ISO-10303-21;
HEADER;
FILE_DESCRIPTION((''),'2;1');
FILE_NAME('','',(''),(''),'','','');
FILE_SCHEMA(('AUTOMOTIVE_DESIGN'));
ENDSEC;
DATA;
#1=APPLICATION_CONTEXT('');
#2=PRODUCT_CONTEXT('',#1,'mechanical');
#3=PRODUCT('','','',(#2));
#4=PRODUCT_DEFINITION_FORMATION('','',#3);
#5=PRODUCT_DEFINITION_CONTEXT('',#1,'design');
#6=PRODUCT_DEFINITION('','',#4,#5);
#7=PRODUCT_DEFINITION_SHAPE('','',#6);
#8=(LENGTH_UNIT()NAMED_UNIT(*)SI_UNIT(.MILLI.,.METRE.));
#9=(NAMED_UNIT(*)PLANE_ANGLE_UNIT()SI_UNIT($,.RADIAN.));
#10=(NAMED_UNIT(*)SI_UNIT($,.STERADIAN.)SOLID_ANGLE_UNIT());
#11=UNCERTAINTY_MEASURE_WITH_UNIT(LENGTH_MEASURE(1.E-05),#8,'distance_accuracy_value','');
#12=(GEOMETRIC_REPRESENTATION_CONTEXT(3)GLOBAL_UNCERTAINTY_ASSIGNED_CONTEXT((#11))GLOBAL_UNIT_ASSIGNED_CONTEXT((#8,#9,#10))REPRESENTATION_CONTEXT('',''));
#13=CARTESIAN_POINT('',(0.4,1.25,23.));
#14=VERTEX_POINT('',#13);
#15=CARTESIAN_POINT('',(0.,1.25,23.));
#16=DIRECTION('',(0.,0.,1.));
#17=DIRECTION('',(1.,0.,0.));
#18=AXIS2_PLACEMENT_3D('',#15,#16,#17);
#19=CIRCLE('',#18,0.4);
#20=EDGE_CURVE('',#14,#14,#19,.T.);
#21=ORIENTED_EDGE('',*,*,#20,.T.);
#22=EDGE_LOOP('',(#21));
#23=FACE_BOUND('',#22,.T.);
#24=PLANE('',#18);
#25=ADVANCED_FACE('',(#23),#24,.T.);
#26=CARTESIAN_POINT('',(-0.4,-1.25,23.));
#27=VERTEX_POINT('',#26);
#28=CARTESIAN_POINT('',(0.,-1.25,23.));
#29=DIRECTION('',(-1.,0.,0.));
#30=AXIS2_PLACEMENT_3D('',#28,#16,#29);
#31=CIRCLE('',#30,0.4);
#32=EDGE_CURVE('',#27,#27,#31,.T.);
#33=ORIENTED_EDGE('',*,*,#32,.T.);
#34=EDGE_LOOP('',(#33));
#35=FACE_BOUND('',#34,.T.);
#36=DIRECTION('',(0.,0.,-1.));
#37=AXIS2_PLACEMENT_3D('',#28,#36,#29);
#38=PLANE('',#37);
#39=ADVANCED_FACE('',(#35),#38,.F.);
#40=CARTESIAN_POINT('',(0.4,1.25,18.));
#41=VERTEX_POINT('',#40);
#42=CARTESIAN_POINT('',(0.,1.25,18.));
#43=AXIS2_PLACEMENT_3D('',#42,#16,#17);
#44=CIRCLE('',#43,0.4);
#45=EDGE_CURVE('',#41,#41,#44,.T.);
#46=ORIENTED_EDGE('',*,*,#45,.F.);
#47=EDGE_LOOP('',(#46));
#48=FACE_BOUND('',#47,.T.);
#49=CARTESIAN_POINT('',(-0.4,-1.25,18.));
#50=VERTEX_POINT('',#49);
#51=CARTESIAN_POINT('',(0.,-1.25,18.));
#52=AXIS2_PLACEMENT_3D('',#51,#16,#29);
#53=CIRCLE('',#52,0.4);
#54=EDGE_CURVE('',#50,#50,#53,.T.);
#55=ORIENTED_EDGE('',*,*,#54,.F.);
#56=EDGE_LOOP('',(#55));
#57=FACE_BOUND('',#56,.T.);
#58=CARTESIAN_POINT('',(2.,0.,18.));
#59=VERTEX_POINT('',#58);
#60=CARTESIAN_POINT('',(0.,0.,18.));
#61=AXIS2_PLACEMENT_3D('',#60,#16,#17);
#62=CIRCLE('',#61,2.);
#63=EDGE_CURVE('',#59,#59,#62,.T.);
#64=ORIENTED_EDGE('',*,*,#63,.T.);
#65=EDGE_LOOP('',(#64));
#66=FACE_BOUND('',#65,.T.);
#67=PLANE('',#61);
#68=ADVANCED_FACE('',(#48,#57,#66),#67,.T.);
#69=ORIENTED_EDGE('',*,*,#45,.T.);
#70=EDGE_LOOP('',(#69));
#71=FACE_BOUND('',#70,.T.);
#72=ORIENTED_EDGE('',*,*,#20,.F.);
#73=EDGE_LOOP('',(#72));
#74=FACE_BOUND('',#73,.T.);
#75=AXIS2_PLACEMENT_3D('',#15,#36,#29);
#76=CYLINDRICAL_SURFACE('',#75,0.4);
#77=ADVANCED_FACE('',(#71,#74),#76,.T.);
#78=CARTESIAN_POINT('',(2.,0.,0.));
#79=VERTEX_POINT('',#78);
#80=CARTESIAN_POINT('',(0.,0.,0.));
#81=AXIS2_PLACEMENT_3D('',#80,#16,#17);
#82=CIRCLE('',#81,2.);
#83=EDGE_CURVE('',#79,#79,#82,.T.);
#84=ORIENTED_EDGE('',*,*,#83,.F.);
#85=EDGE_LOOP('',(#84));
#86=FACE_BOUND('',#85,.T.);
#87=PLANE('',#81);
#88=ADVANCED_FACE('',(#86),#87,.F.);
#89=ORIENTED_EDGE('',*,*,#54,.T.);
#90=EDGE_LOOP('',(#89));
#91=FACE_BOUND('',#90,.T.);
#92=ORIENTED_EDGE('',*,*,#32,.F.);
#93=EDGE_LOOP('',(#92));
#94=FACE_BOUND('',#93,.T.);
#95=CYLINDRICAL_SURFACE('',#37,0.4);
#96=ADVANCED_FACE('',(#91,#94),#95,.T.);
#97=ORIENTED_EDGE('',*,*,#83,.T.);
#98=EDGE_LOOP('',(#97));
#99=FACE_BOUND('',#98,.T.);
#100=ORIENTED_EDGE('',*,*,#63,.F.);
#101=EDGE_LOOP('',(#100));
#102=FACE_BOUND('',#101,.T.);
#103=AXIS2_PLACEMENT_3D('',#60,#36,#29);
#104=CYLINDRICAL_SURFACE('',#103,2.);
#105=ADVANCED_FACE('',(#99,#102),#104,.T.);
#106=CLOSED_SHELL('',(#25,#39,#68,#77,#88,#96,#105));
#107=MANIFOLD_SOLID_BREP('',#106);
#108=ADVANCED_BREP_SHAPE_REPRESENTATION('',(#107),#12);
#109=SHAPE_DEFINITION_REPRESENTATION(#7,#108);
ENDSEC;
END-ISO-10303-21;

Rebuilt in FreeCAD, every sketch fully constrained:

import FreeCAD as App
import Part
import Sketcher

V = App.Vector
Q = App.Units.Quantity

doc = App.newDocument("Part")
body = doc.addObject("PartDesign::Body", "Body")

# Sketch on XY plane
sketch1 = body.newObject("Sketcher::SketchObject", "Sketch")
sketch1.AttachmentSupport = (doc.getObject("XY_Plane"), [""])
sketch1.MapMode = "FlatFace"
sketch1.addGeometry(Part.Circle(V(0, 0, 0), V(0, 0, 1), 2), False)
sketch1.addConstraint([
    Sketcher.Constraint("Coincident", 0, 3, -1, 1),
    Sketcher.Constraint("Diameter", 0, Q("4 mm")),
])
pad1 = body.newObject("PartDesign::Pad", "Pad")
pad1.Profile = sketch1
pad1.Length = 18

# Sketch on XY plane
sketch2 = body.newObject("Sketcher::SketchObject", "Sketch001")
sketch2.AttachmentSupport = (doc.getObject("XY_Plane"), [""])
sketch2.MapMode = "FlatFace"
sketch2.AttachmentOffset = App.Placement(V(0, 0, 18), App.Rotation())
sketch2.addGeometry([
    Part.Circle(V(0, 1.25, 0), V(0, 0, 1), 0.4),
    Part.Circle(V(0, -1.25, 0), V(0, 0, 1), 0.4),
], False)
sketch2.addConstraint([
    Sketcher.Constraint("Equal", 0, 1),
    Sketcher.Constraint("Symmetric", 0, 3, 1, 3, -1, 1),
    Sketcher.Constraint("PointOnObject", 0, 3, -2),
    Sketcher.Constraint("Diameter", 0, Q("0.8 mm")),
    Sketcher.Constraint("DistanceY", 1, 3, 0, 3, Q("2.5 mm")),
])
pad2 = body.newObject("PartDesign::Pad", "Pad001")
pad2.Profile = sketch2
pad2.Length = 5

doc.recompute()
